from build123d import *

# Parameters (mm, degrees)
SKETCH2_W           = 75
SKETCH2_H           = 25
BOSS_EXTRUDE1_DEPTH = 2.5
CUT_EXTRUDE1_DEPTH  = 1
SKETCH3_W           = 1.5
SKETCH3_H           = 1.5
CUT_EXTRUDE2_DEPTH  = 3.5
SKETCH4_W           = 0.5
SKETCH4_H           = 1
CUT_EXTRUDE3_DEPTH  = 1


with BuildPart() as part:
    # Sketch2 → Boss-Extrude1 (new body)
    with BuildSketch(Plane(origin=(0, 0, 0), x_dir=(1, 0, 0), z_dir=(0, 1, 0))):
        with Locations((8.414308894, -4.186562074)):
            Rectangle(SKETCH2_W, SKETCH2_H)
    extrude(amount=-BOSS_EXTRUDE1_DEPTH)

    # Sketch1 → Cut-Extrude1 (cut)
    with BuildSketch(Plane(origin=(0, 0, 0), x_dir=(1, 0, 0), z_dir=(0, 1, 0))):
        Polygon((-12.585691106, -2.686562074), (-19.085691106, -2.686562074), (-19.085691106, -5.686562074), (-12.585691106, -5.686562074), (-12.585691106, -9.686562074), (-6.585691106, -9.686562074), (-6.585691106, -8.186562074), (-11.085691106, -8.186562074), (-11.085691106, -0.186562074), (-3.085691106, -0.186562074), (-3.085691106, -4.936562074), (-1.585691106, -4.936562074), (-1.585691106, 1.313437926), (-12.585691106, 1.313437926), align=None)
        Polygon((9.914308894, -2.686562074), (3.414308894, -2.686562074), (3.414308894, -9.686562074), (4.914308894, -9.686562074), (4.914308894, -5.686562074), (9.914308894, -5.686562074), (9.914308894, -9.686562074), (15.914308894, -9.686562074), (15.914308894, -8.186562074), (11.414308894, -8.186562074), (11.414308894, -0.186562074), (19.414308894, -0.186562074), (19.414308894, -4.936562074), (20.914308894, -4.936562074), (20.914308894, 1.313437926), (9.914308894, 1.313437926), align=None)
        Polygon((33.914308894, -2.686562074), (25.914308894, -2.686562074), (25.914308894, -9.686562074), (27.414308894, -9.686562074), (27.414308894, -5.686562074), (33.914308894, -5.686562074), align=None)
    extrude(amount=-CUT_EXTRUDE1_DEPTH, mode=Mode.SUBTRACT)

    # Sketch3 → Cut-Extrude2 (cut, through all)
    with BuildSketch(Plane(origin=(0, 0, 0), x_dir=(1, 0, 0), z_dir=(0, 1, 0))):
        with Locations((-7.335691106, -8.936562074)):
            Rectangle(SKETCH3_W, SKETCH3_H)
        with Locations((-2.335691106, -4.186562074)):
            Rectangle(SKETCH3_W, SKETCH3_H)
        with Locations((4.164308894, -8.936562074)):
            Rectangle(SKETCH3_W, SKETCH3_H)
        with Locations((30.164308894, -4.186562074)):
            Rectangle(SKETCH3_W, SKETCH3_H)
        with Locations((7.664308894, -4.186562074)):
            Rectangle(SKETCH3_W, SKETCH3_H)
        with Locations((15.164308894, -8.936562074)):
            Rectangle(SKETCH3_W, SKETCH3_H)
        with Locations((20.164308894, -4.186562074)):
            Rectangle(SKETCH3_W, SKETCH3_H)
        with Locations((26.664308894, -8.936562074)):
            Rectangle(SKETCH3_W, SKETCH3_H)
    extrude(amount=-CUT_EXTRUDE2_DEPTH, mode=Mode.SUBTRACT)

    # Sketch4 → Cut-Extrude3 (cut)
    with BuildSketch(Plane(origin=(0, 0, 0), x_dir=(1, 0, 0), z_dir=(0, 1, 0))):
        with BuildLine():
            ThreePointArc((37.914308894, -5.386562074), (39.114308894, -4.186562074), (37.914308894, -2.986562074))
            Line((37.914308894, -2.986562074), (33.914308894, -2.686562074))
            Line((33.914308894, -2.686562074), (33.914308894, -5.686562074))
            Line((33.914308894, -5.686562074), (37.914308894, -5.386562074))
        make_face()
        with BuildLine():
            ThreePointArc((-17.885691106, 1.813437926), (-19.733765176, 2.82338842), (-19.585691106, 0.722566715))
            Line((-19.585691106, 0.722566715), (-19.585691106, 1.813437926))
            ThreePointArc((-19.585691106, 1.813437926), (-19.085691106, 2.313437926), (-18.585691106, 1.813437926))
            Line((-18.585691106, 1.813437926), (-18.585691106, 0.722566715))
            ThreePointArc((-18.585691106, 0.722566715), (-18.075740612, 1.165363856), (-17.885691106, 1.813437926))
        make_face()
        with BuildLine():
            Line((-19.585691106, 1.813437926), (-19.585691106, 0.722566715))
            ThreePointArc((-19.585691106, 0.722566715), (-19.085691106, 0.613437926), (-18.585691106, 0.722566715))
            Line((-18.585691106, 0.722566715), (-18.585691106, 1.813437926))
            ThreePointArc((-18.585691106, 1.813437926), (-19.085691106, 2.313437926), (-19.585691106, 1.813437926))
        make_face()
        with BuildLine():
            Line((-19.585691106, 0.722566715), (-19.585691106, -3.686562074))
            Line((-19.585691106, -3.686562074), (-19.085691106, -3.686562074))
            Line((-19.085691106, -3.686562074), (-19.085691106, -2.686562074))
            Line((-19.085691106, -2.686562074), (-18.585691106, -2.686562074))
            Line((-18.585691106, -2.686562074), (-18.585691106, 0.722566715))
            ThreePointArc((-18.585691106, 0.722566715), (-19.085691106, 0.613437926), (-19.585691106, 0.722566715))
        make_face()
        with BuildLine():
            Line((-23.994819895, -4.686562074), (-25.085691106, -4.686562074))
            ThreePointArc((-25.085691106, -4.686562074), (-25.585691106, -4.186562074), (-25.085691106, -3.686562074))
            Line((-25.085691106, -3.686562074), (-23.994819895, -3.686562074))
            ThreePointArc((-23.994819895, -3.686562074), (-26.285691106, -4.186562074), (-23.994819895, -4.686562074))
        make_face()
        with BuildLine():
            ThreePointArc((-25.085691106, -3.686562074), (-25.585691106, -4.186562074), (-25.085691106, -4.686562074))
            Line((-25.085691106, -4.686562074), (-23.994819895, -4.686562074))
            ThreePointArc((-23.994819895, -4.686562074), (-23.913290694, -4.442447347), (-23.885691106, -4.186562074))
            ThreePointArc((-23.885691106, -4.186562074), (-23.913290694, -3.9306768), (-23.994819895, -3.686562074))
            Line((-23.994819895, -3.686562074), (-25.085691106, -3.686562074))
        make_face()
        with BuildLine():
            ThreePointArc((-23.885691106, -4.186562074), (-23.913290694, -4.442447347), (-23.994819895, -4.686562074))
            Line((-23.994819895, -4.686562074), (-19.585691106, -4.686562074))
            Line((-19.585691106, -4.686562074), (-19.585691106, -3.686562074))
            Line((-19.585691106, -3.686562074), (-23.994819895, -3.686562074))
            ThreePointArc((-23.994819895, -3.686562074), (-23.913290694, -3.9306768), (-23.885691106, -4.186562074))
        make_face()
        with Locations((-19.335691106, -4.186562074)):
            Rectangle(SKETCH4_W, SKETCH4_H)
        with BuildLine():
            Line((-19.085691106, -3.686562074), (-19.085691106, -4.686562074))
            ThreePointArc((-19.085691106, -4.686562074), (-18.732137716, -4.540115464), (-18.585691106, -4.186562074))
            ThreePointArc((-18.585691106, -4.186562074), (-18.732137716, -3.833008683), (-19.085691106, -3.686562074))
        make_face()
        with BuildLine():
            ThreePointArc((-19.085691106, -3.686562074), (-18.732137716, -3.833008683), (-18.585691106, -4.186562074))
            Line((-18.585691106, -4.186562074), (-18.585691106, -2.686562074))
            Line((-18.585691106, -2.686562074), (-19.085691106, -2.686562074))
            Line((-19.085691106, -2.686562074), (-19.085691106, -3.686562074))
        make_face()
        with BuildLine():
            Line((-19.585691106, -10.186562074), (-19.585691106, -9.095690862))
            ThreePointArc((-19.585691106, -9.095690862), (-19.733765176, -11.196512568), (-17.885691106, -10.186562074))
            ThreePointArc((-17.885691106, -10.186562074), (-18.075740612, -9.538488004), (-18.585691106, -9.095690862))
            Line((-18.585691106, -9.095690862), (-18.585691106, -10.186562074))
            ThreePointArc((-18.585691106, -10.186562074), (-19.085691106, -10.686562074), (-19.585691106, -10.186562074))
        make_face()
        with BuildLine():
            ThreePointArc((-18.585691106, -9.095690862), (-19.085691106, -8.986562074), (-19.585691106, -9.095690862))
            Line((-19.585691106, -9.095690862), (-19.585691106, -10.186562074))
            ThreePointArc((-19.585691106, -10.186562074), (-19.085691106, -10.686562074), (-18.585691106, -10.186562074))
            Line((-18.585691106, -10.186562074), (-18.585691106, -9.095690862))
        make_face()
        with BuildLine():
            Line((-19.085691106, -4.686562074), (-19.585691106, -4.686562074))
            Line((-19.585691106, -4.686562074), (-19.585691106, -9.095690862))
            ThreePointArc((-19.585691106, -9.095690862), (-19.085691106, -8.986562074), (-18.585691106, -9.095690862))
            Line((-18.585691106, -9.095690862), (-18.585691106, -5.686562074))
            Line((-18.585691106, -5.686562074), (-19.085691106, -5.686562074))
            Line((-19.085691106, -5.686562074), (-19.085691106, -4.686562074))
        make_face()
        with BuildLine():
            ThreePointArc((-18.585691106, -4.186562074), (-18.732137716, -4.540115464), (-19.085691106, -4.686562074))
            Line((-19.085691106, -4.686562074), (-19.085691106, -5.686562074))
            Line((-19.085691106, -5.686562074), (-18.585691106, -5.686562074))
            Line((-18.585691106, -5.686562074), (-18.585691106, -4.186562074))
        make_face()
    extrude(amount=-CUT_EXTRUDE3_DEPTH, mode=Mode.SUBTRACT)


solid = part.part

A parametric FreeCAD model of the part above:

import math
import FreeCAD as App
import Part
import Sketcher

V = App.Vector
Q = App.Units.Quantity


def add_polygon(sketch, points):
    """Adds a closed chain of lines whose ends are joined by coincident constraints."""
    first, n = sketch.GeometryCount, len(points)
    for a, b in zip(points, points[1:] + points[:1]):
        sketch.addGeometry(Part.LineSegment(App.Vector(*a, 0), App.Vector(*b, 0)), False)
    for i in range(n):
        sketch.addConstraint(Sketcher.Constraint("Coincident", first + i, 2, first + (i + 1) % n, 1))

doc = App.newDocument("Part")
body = doc.addObject("PartDesign::Body", "Body")

# Sketch on XZ plane
sketch1 = doc.addObject("Sketcher::SketchObject", "Sketch")
body.addObject(sketch1)
sketch1.AttachmentSupport = (doc.XZ_Plane, [""])
sketch1.MapMode = "FlatFace"
add_polygon(sketch1, [(-29, -8), (-29, 17), (46, 17), (46, -8)])  # lines 0-3
sketch1.addConstraint(Sketcher.Constraint("Vertical", 0))
sketch1.addConstraint(Sketcher.Constraint("Horizontal", 1))
sketch1.addConstraint(Sketcher.Constraint("Vertical", 2))
sketch1.addConstraint(Sketcher.Constraint("Horizontal", 3))
sketch1.addConstraint(Sketcher.Constraint("DistanceX", 1, 1, 1, 2, Q("75 mm")))
sketch1.addConstraint(Sketcher.Constraint("DistanceY", 0, 1, 0, 2, Q("25 mm")))
sketch1.addConstraint(Sketcher.Constraint("DistanceX", 0, 2, -1, 1, Q("29.085691 mm")))
sketch1.addConstraint(Sketcher.Constraint("DistanceY", -1, 1, 0, 2, Q("16.686562 mm")))
pad1 = doc.addObject("PartDesign::Pad", "Pad")
body.addObject(pad1)
pad1.Profile = sketch1
pad1.Length = 2.5

# Sketch on XZ plane
sketch2 = doc.addObject("Sketcher::SketchObject", "Sketch001")
body.addObject(sketch2)
sketch2.AttachmentSupport = (doc.XZ_Plane, [""])
sketch2.MapMode = "FlatFace"
add_polygon(sketch2, [(-12.6, 2.7), (-19.1, 2.7), (-19.1, 5.7), (-12.6, 5.7), (-12.6, 9.7), (-6.6, 9.7), (-6.6, 8.2), (-11.1, 8.2), (-11.1, 0.2), (-3.1, 0.2), (-3.1, 4.9), (-1.6, 4.9), (-1.6, -1.3), (-12.6, -1.3)])  # lines 0-13
add_polygon(sketch2, [(9.9, 2.7), (3.4, 2.7), (3.4, 9.7), (4.9, 9.7), (4.9, 5.7), (9.9, 5.7), (9.9, 9.7), (15.9, 9.7), (15.9, 8.2), (11.4, 8.2), (11.4, 0.2), (19.4, 0.2), (19.4, 4.9), (20.9, 4.9), (20.9, -1.3), (9.9, -1.3)])  # lines 14-29
add_polygon(sketch2, [(33.9, 2.7), (25.9, 2.7), (25.9, 9.7), (27.4, 9.7), (27.4, 5.7), (33.9, 5.7)])  # lines 30-35
sketch2.addConstraint(Sketcher.Constraint("Horizontal", 0))
sketch2.addConstraint(Sketcher.Constraint("Vertical", 1))
sketch2.addConstraint(Sketcher.Constraint("Horizontal", 2))
sketch2.addConstraint(Sketcher.Constraint("Vertical", 3))
sketch2.addConstraint(Sketcher.Constraint("Horizontal", 4))
sketch2.addConstraint(Sketcher.Constraint("Vertical", 5))
sketch2.addConstraint(Sketcher.Constraint("Horizontal", 6))
sketch2.addConstraint(Sketcher.Constraint("Vertical", 7))
sketch2.addConstraint(Sketcher.Constraint("Horizontal", 8))
sketch2.addConstraint(Sketcher.Constraint("Vertical", 9))
sketch2.addConstraint(Sketcher.Constraint("Horizontal", 10))
sketch2.addConstraint(Sketcher.Constraint("Vertical", 11))
sketch2.addConstraint(Sketcher.Constraint("Horizontal", 12))
sketch2.addConstraint(Sketcher.Constraint("Vertical", 13))
sketch2.addConstraint(Sketcher.Constraint("Horizontal", 14))
sketch2.addConstraint(Sketcher.Constraint("Vertical", 15))
sketch2.addConstraint(Sketcher.Constraint("Horizontal", 16))
sketch2.addConstraint(Sketcher.Constraint("Vertical", 17))
sketch2.addConstraint(Sketcher.Constraint("Horizontal", 18))
sketch2.addConstraint(Sketcher.Constraint("Vertical", 19))
sketch2.addConstraint(Sketcher.Constraint("Horizontal", 20))
sketch2.addConstraint(Sketcher.Constraint("Vertical", 21))
sketch2.addConstraint(Sketcher.Constraint("Horizontal", 22))
sketch2.addConstraint(Sketcher.Constraint("Vertical", 23))
sketch2.addConstraint(Sketcher.Constraint("Horizontal", 24))
sketch2.addConstraint(Sketcher.Constraint("Vertical", 25))
sketch2.addConstraint(Sketcher.Constraint("Horizontal", 26))
sketch2.addConstraint(Sketcher.Constraint("Vertical", 27))
sketch2.addConstraint(Sketcher.Constraint("Horizontal", 28))
sketch2.addConstraint(Sketcher.Constraint("Vertical", 29))
sketch2.addConstraint(Sketcher.Constraint("Horizontal", 30))
sketch2.addConstraint(Sketcher.Constraint("Vertical", 31))
sketch2.addConstraint(Sketcher.Constraint("Horizontal", 32))
sketch2.addConstraint(Sketcher.Constraint("Vertical", 33))
sketch2.addConstraint(Sketcher.Constraint("Horizontal", 34))
sketch2.addConstraint(Sketcher.Constraint("Vertical", 35))
sketch2.addConstraint(Sketcher.Constraint("Horizontal", 13, 2, 14, 2))
sketch2.addConstraint(Sketcher.Constraint("Horizontal", 4, 2, 15, 2))
sketch2.addConstraint(Sketcher.Constraint("Horizontal", 2, 2, 17, 2))
sketch2.addConstraint(Sketcher.Constraint("Horizontal", 16, 2, 19, 2))
sketch2.addConstraint(Sketcher.Constraint("Horizontal", 6, 2, 21, 2))
sketch2.addConstraint(Sketcher.Constraint("Horizontal", 8, 2, 23, 2))
sketch2.addConstraint(Sketcher.Constraint("Horizontal", 10, 2, 25, 2))
sketch2.addConstraint(Sketcher.Constraint("Horizontal", 12, 2, 27, 2))
sketch2.addConstraint(Sketcher.Constraint("Horizontal", 29, 2, 30, 2))
sketch2.addConstraint(Sketcher.Constraint("Horizontal", 20, 2, 31, 2))
sketch2.addConstraint(Sketcher.Constraint("Horizontal", 18, 2, 33, 2))
sketch2.addConstraint(Sketcher.Constraint("Vertical", 3, 2, 12, 2))
sketch2.addConstraint(Sketcher.Constraint("Vertical", 19, 2, 28, 2))
sketch2.addConstraint(Sketcher.Constraint("Equal", 2, 14))
sketch2.addConstraint(Sketcher.Constraint("Equal", 10, 16))
sketch2.addConstraint(Sketcher.Constraint("Equal", 4, 20))
sketch2.addConstraint(Sketcher.Constraint("Equal", 6, 22))
sketch2.addConstraint(Sketcher.Constraint("Equal", 8, 24))
sketch2.addConstraint(Sketcher.Constraint("Equal", 16, 26))
sketch2.addConstraint(Sketcher.Constraint("Equal", 24, 30))
sketch2.addConstraint(Sketcher.Constraint("Equal", 26, 32))
sketch2.addConstraint(Sketcher.Constraint("Equal", 14, 34))
sketch2.addConstraint(Sketcher.Constraint("Equal", 32, 5))
sketch2.addConstraint(Sketcher.Constraint("Equal", 30, 7))
sketch2.addConstraint(Sketcher.Constraint("Equal", 3, 13))
sketch2.addConstraint(Sketcher.Constraint("DistanceX", 4, 1, 4, 2, Q("6 mm")))
sketch2.addConstraint(Sketcher.Constraint("DistanceX", 8, 1, 8, 2, Q("8 mm")))
sketch2.addConstraint(Sketcher.Constraint("DistanceX", 12, 2, 12, 1, Q("11 mm")))
sketch2.addConstraint(Sketcher.Constraint("DistanceX", 18, 1, 18, 2, Q("5 mm")))
sketch2.addConstraint(Sketcher.Constraint("DistanceY", 1, 1, 1, 2, Q("3 mm")))
sketch2.addConstraint(Sketcher.Constraint("DistanceY", 3, 1, 3, 2, Q("4 mm")))
sketch2.addConstraint(Sketcher.Constraint("DistanceX", 10, 2, 14, 2, Q("5 mm")))
sketch2.addConstraint(Sketcher.Constraint("DistanceX", 26, 2, 30, 2, Q("5 mm")))
sketch2.addConstraint(Sketcher.Constraint("DistanceY", 9, 1, 9, 2, Q("4.75 mm")))
sketch2.addConstraint(Sketcher.Constraint("DistanceX", 0, 2, -1, 1, Q("19.085691 mm")))
sketch2.addConstraint(Sketcher.Constraint("DistanceY", -1, 1, 0, 2, Q("2.686562 mm")))
pocket1 = doc.addObject("PartDesign::Pocket", "Pocket")
body.addObject(pocket1)
pocket1.Profile = sketch2
pocket1.Length = 1
pocket1.Reversed = True

# Sketch on XZ plane
sketch3 = doc.addObject("Sketcher::SketchObject", "Sketch002")
body.addObject(sketch3)
sketch3.AttachmentSupport = (doc.XZ_Plane, [""])
sketch3.MapMode = "FlatFace"
add_polygon(sketch3, [(-8.1, 8.2), (-8.1, 9.7), (-6.6, 9.7), (-6.6, 8.2)])  # lines 0-3
add_polygon(sketch3, [(-3.1, 3.4), (-3.1, 4.9), (-1.6, 4.9), (-1.6, 3.4)])  # lines 4-7
add_polygon(sketch3, [(3.4, 8.2), (3.4, 9.7), (4.9, 9.7), (4.9, 8.2)])  # lines 8-11
add_polygon(sketch3, [(29.4, 3.4), (29.4, 4.9), (30.9, 4.9), (30.9, 3.4)])  # lines 12-15
add_polygon(sketch3, [(6.9, 3.4), (6.9, 4.9), (8.4, 4.9), (8.4, 3.4)])  # lines 16-19
add_polygon(sketch3, [(14.4, 8.2), (14.4, 9.7), (15.9, 9.7), (15.9, 8.2)])  # lines 20-23
add_polygon(sketch3, [(19.4, 3.4), (19.4, 4.9), (20.9, 4.9), (20.9, 3.4)])  # lines 24-27
add_polygon(sketch3, [(25.9, 8.2), (25.9, 9.7), (27.4, 9.7), (27.4, 8.2)])  # lines 28-31
sketch3.addConstraint(Sketcher.Constraint("Vertical", 0))
sketch3.addConstraint(Sketcher.Constraint("Horizontal", 1))
sketch3.addConstraint(Sketcher.Constraint("Vertical", 2))
sketch3.addConstraint(Sketcher.Constraint("Horizontal", 3))
sketch3.addConstraint(Sketcher.Constraint("Vertical", 4))
sketch3.addConstraint(Sketcher.Constraint("Horizontal", 5))
sketch3.addConstraint(Sketcher.Constraint("Vertical", 6))
sketch3.addConstraint(Sketcher.Constraint("Horizontal", 7))
sketch3.addConstraint(Sketcher.Constraint("Vertical", 8))
sketch3.addConstraint(Sketcher.Constraint("Horizontal", 9))
sketch3.addConstraint(Sketcher.Constraint("Vertical", 10))
sketch3.addConstraint(Sketcher.Constraint("Horizontal", 11))
sketch3.addConstraint(Sketcher.Constraint("Vertical", 12))
sketch3.addConstraint(Sketcher.Constraint("Horizontal", 13))
sketch3.addConstraint(Sketcher.Constraint("Vertical", 14))
sketch3.addConstraint(Sketcher.Constraint("Horizontal", 15))
sketch3.addConstraint(Sketcher.Constraint("Vertical", 16))
sketch3.addConstraint(Sketcher.Constraint("Horizontal", 17))
sketch3.addConstraint(Sketcher.Constraint("Vertical", 18))
sketch3.addConstraint(Sketcher.Constraint("Horizontal", 19))
sketch3.addConstraint(Sketcher.Constraint("Vertical", 20))
sketch3.addConstraint(Sketcher.Constraint("Horizontal", 21))
sketch3.addConstraint(Sketcher.Constraint("Vertical", 22))
sketch3.addConstraint(Sketcher.Constraint("Horizontal", 23))
sketch3.addConstraint(Sketcher.Constraint("Vertical", 24))
sketch3.addConstraint(Sketcher.Constraint("Horizontal", 25))
sketch3.addConstraint(Sketcher.Constraint("Vertical", 26))
sketch3.addConstraint(Sketcher.Constraint("Horizontal", 27))
sketch3.addConstraint(Sketcher.Constraint("Vertical", 28))
sketch3.addConstraint(Sketcher.Constraint("Horizontal", 29))
sketch3.addConstraint(Sketcher.Constraint("Vertical", 30))
sketch3.addConstraint(Sketcher.Constraint("Horizontal", 31))
sketch3.addConstraint(Sketcher.Constraint("Horizontal", 1, 2, 8, 2))
sketch3.addConstraint(Sketcher.Constraint("Horizontal", 3, 2, 10, 2))
sketch3.addConstraint(Sketcher.Constraint("Horizontal", 5, 2, 12, 2))
sketch3.addConstraint(Sketcher.Constraint("Horizontal", 7, 2, 14, 2))
sketch3.addConstraint(Sketcher.Constraint("Horizontal", 13, 2, 16, 2))
sketch3.addConstraint(Sketcher.Constraint("Horizontal", 15, 2, 18, 2))
sketch3.addConstraint(Sketcher.Constraint("Horizontal", 9, 2, 20, 2))
sketch3.addConstraint(Sketcher.Constraint("Horizontal", 11, 2, 22, 2))
sketch3.addConstraint(Sketcher.Constraint("Horizontal", 17, 2, 24, 2))
sketch3.addConstraint(Sketcher.Constraint("Horizontal", 19, 2, 26, 2))
sketch3.addConstraint(Sketcher.Constraint("Horizontal", 21, 2, 28, 2))
sketch3.addConstraint(Sketcher.Constraint("Horizontal", 23, 2, 30, 2))
sketch3.addConstraint(Sketcher.Constraint("Equal", 3, 5))
sketch3.addConstraint(Sketcher.Constraint("Equal", 7, 9))
sketch3.addConstraint(Sketcher.Constraint("Equal", 11, 13))
sketch3.addConstraint(Sketcher.Constraint("Equal", 15, 17))
sketch3.addConstraint(Sketcher.Constraint("Equal", 19, 21))
sketch3.addConstraint(Sketcher.Constraint("Equal", 23, 25))
sketch3.addConstraint(Sketcher.Constraint("Equal", 27, 29))
sketch3.addConstraint(Sketcher.Constraint("Equal", 31, 0))
sketch3.addConstraint(Sketcher.Constraint("Equal", 2, 4))
sketch3.addConstraint(Sketcher.Constraint("DistanceX", 1, 1, 1, 2, Q("1.5 mm")))
sketch3.addConstraint(Sketcher.Constraint("DistanceX", 3, 2, 4, 2, Q("5 mm")))
sketch3.addConstraint(Sketcher.Constraint("DistanceX", 5, 2, 8, 2, Q("5 mm")))
sketch3.addConstraint(Sketcher.Constraint("DistanceX", 11, 2, 12, 2, Q("26 mm")))
sketch3.addConstraint(Sketcher.Constraint("DistanceX", 10, 2, 16, 2, Q("2 mm")))
sketch3.addConstraint(Sketcher.Constraint("DistanceX", 17, 2, 20, 2, Q("6 mm")))
sketch3.addConstraint(Sketcher.Constraint("DistanceX", 23, 2, 24, 2, Q("5 mm")))
sketch3.addConstraint(Sketcher.Constraint("DistanceX", 28, 2, 13, 2, Q("5 mm")))
sketch3.addConstraint(Sketcher.Constraint("DistanceY", 4, 2, 2, 2, Q("3.25 mm")))
sketch3.addConstraint(Sketcher.Constraint("DistanceX", 0, 2, -1, 1, Q("8.085691 mm")))
sketch3.addConstraint(Sketcher.Constraint("DistanceY", -1, 1, 0, 2, Q("9.686562 mm")))
pocket2 = doc.addObject("PartDesign::Pocket", "Pocket001")
body.addObject(pocket2)
pocket2.Profile = sketch3
pocket2.Type = "ThroughAll"
pocket2.Reversed = True

# Sketch on XZ plane
sketch4 = doc.addObject("Sketcher::SketchObject", "Sketch003")
body.addObject(sketch4)
sketch4.AttachmentSupport = (doc.XZ_Plane, [""])
sketch4.MapMode = "FlatFace"
sketch4.addGeometry(Part.ArcOfCircle(Part.Circle(V(37.9, 4.2, 0), V(0, 0, 1), 1.2), math.radians(-90), math.radians(90)), False)
sketch4.addGeometry(Part.LineSegment(V(37.9, 3, 0), V(33.9, 2.7, 0)), False)
sketch4.addGeometry(Part.LineSegment(V(33.9, 2.7, 0), V(33.9, 5.7, 0)), False)
sketch4.addGeometry(Part.LineSegment(V(33.9, 5.7, 0), V(37.9, 5.4, 0)), False)
sketch4.addGeometry(Part.ArcOfCircle(Part.Circle(V(-19.1, -1.8, 0), V(0, 0, 1), 1.2), math.radians(115), math.radians(360)), False)
sketch4.addGeometry(Part.LineSegment(V(-19.6, -0.7, 0), V(-19.6, 3.7, 0)), False)
sketch4.addGeometry(Part.LineSegment(V(-19.6, 3.7, 0), V(-24, 3.7, 0)), False)
sketch4.addGeometry(Part.ArcOfCircle(Part.Circle(V(-25.1, 4.2, 0), V(0, 0, 1), 1.2), math.radians(25), math.radians(335)), False)
sketch4.addGeometry(Part.LineSegment(V(-24, 4.7, 0), V(-19.6, 4.7, 0)), False)
sketch4.addGeometry(Part.LineSegment(V(-19.6, 4.7, 0), V(-19.6, 9.1, 0)), False)
sketch4.addGeometry(Part.ArcOfCircle(Part.Circle(V(-19.1, 10.2, 0), V(0, 0, 1), 1.2), math.radians(0), math.radians(245)), False)
sketch4.addGeometry(Part.ArcOfCircle(Part.Circle(V(-19.1, 10.2, 0), V(0, 0, 1), 1.2), math.radians(-65), math.radians(0)), False)
sketch4.addGeometry(Part.LineSegment(V(-18.6, 9.1, 0), V(-18.6, -0.7, 0)), False)
sketch4.addGeometry(Part.ArcOfCircle(Part.Circle(V(-19.1, -1.8, 0), V(0, 0, 1), 1.2), math.radians(0), math.radians(65)), False)
sketch4.addConstraint(Sketcher.Constraint("Coincident", 0, 1, 1, 1))
sketch4.addConstraint(Sketcher.Constraint("Coincident", 1, 2, 2, 1))
sketch4.addConstraint(Sketcher.Constraint("Coincident", 2, 2, 3, 1))
sketch4.addConstraint(Sketcher.Constraint("Coincident", 3, 2, 0, 2))
sketch4.addConstraint(Sketcher.Constraint("Coincident", 4, 1, 5, 1))
sketch4.addConstraint(Sketcher.Constraint("Coincident", 5, 2, 6, 1))
sketch4.addConstraint(Sketcher.Constraint("Coincident", 6, 2, 7, 2))
sketch4.addConstraint(Sketcher.Constraint("Coincident", 7, 1, 8, 1))
sketch4.addConstraint(Sketcher.Constraint("Coincident", 8, 2, 9, 1))
sketch4.addConstraint(Sketcher.Constraint("Coincident", 9, 2, 10, 2))
sketch4.addConstraint(Sketcher.Constraint("Tangent", 10, 1, 11, 2))
sketch4.addConstraint(Sketcher.Constraint("Coincident", 11, 1, 12, 1))
sketch4.addConstraint(Sketcher.Constraint("Coincident", 12, 2, 13, 2))
sketch4.addConstraint(Sketcher.Constraint("Tangent", 13, 1, 4, 2))
sketch4.addConstraint(Sketcher.Constraint("Vertical", 2))
sketch4.addConstraint(Sketcher.Constraint("Vertical", 5))
sketch4.addConstraint(Sketcher.Constraint("Horizontal", 6))
sketch4.addConstraint(Sketcher.Constraint("Horizontal", 8))
sketch4.addConstraint(Sketcher.Constraint("Vertical", 9))
sketch4.addConstraint(Sketcher.Constraint("Vertical", 12))
sketch4.addConstraint(Sketcher.Constraint("Equal", 0, 4))
sketch4.addConstraint(Sketcher.Constraint("Equal", 4, 7))
sketch4.addConstraint(Sketcher.Constraint("Equal", 7, 10))
sketch4.addConstraint(Sketcher.Constraint("Equal", 10, 11))
sketch4.addConstraint(Sketcher.Constraint("Equal", 11, 13))
sketch4.addConstraint(Sketcher.Constraint("Horizontal", 0, 3, 7, 3))
sketch4.addConstraint(Sketcher.Constraint("Horizontal", 11, 3, 10, 1))
sketch4.addConstraint(Sketcher.Constraint("Horizontal", 9, 2, 11, 1))
sketch4.addConstraint(Sketcher.Constraint("Horizontal", 4, 1, 12, 2))
sketch4.addConstraint(Sketcher.Constraint("Horizontal", 4, 3, 13, 1))
sketch4.addConstraint(Sketcher.Constraint("Vertical", 4, 3, 10, 3))
sketch4.addConstraint(Sketcher.Constraint("Vertical", 0, 1, 3, 2))
sketch4.addConstraint(Sketcher.Constraint("Vertical", 6, 2, 7, 1))
sketch4.addConstraint(Sketcher.Constraint("Equal", 8, 5))
sketch4.addConstraint(Sketcher.Constraint("Equal", 5, 9))
sketch4.addConstraint(Sketcher.Constraint("Equal", 1, 3))
sketch4.addConstraint(Sketcher.Constraint("Radius", 0, Q("1.2 mm")))
sketch4.addConstraint(Sketcher.Constraint("DistanceY", 2, 1, 2, 2, Q("3 mm")))
sketch4.addConstraint(Sketcher.Constraint("DistanceX", 4, 3, 0, 3, Q("57 mm")))
sketch4.addConstraint(Sketcher.Constraint("DistanceY", 4, 3, 0, 3, Q("6 mm")))
sketch4.addConstraint(Sketcher.Constraint("DistanceX", 7, 3, 4, 3, Q("6 mm")))
sketch4.addConstraint(Sketcher.Constraint("DistanceX", 13, 3, 0, 1, Q("57 mm")))
sketch4.addConstraint(Sketcher.Constraint("DistanceX", 1, 2, 0, 1, Q("4 mm")))
sketch4.addConstraint(Sketcher.Constraint("DistanceY", 6, 2, 7, 1, Q("1 mm")))
sketch4.addConstraint(Sketcher.Constraint("DistanceX", -1, 1, 0, 3, Q("37.914309 mm")))
sketch4.addConstraint(Sketcher.Constraint("DistanceY", -1, 1, 9, 2, Q("9.095691 mm")))
pocket3 = doc.addObject("PartDesign::Pocket", "Pocket002")
body.addObject(pocket3)
pocket3.Profile = sketch4
pocket3.Length = 1
pocket3.Reversed = True

doc.recompute()
